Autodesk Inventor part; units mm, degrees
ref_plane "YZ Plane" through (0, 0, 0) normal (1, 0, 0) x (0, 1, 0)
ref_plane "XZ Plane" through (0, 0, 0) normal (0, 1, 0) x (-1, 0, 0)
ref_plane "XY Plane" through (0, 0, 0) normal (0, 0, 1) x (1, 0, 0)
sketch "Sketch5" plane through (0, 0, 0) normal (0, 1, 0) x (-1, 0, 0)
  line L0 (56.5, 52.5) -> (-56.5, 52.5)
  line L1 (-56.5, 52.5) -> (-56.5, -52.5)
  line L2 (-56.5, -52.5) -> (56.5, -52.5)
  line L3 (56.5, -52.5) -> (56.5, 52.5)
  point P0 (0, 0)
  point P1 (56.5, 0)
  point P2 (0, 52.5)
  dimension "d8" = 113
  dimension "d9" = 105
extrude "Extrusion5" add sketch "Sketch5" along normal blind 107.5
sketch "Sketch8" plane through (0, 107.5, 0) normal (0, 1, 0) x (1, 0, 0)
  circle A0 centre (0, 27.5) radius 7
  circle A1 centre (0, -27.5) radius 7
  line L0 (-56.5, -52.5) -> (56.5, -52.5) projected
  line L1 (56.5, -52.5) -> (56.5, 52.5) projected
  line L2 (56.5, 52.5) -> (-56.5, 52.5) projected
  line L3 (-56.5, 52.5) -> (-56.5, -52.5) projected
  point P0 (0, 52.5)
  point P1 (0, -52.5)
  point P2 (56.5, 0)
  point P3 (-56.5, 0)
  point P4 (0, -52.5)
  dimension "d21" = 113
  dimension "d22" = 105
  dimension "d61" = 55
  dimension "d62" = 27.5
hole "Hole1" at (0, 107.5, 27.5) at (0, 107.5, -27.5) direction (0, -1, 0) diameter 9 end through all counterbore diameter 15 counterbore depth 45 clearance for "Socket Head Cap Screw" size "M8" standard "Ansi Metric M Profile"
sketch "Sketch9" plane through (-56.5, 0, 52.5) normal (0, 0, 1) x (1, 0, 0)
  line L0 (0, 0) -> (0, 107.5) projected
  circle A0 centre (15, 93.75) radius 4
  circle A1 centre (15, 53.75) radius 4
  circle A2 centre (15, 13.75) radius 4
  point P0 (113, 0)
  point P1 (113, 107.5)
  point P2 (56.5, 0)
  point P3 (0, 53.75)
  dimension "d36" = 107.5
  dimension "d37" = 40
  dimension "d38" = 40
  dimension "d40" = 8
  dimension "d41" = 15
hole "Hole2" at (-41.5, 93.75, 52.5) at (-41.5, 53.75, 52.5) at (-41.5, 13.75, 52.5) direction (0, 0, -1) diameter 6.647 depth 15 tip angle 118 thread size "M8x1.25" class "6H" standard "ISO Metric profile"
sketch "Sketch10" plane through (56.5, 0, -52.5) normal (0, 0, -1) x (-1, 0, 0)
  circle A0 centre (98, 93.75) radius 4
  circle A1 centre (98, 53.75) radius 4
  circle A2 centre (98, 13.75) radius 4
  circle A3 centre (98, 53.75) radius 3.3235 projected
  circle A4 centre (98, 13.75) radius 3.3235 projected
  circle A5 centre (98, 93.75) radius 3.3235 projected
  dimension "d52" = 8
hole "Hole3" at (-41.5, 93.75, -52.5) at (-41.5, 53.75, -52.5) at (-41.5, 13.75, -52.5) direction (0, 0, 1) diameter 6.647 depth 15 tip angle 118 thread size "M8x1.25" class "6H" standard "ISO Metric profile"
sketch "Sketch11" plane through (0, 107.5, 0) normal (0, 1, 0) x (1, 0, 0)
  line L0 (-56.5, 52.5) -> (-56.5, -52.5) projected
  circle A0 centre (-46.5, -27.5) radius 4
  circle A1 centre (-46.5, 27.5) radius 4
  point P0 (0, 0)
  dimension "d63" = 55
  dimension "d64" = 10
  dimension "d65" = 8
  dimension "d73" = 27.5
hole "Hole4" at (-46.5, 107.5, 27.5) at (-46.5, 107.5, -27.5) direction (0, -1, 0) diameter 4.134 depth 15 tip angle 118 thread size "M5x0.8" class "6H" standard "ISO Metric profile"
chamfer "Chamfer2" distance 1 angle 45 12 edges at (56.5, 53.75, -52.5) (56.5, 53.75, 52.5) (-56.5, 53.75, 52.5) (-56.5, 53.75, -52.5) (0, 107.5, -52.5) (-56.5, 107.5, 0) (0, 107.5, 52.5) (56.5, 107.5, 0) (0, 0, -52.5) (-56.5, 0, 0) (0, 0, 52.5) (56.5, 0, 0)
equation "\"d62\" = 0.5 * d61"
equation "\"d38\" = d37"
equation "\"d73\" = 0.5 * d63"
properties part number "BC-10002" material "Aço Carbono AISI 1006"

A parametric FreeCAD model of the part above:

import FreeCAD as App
import Part
import Sketcher
from FreeCAD import Vector


def edges_at(feature, points):
    """Names of the edges that pass closest to the given points."""
    edges = feature.Shape.Edges
    near = lambda p: min(range(len(edges)), key=lambda i: edges[i].distToShape(Part.Vertex(*p))[0])
    return sorted({f"Edge{near(p) + 1}" for p in points})

doc = App.newDocument("Part")
body = doc.addObject("PartDesign::Body", "Body")

sketch1 = body.newObject("Sketcher::SketchObject", "Sketch")
sketch1.AttachmentSupport = (doc.getObject("XZ_Plane"), [""])
sketch1.MapMode = "FlatFace"
sketch1.addGeometry([
    Part.LineSegment(Vector(-56, -52, 0), Vector(-56, 52, 0)),
    Part.LineSegment(Vector(-56, 52, 0), Vector(56, 52, 0)),
    Part.LineSegment(Vector(56, 52, 0), Vector(56, -52, 0)),
    Part.LineSegment(Vector(56, -52, 0), Vector(-56, -52, 0)),
], False)
sketch1.addConstraint([
    Sketcher.Constraint("Coincident", 0, 2, 1, 1),
    Sketcher.Constraint("Coincident", 1, 2, 2, 1),
    Sketcher.Constraint("Coincident", 2, 2, 3, 1),
    Sketcher.Constraint("Coincident", 3, 2, 0, 1),
    Sketcher.Constraint("Vertical", 0),
    Sketcher.Constraint("Horizontal", 1),
    Sketcher.Constraint("Vertical", 2),
    Sketcher.Constraint("Horizontal", 3),
    Sketcher.Constraint("Symmetric", 0, 2, 2, 2, -1, 1),
    Sketcher.Constraint("DistanceX", 1, 1, 1, 2, 113.0),
    Sketcher.Constraint("DistanceY", 0, 1, 0, 2, 105.0),
])
pad1 = body.newObject("PartDesign::Pad", "Pad")
pad1.Profile = sketch1
pad1.Length = 107.5
pad1.Reversed = True

sketch2 = body.newObject("Sketcher::SketchObject", "Sketch001")
sketch2.AttachmentSupport = (doc.getObject("XZ_Plane"), [""])
sketch2.MapMode = "FlatFace"
sketch2.AttachmentOffset = App.Placement(Vector(0, 0, -107.5), App.Rotation())
sketch2.addGeometry([
    Part.Circle(Vector(0, 27.5, 0), Vector(0, 0, 1), 4.5),
    Part.Circle(Vector(0, -27.5, 0), Vector(0, 0, 1), 4.5),
], False)
sketch2.addConstraint([
    Sketcher.Constraint("Equal", 0, 1),
    Sketcher.Constraint("Symmetric", 0, 3, 1, 3, -1, 1),
    Sketcher.Constraint("PointOnObject", 0, 3, -2),
    Sketcher.Constraint("Diameter", 0, 9.0),
    Sketcher.Constraint("DistanceY", 1, 3, 0, 3, 55.0),
])
doc.recompute()
hole = body.newObject("PartDesign::Hole", "Hole")
hole.Profile = sketch2
hole.ThreadType = "None"
hole.Diameter = 9
hole.DepthType = "ThroughAll"
hole.HoleCutType = "Counterbore"
hole.HoleCutDiameter = 15
hole.HoleCutDepth = 45
hole.Reversed = True

sketch3 = body.newObject("Sketcher::SketchObject", "Sketch002")
sketch3.AttachmentSupport = (doc.getObject("XY_Plane"), [""])
sketch3.MapMode = "FlatFace"
sketch3.AttachmentOffset = App.Placement(Vector(0, 0, 52.5), App.Rotation())
sketch3.addGeometry([
    Part.Circle(Vector(-41.5, 93.8, 0), Vector(0, 0, 1), 3.3),
    Part.Circle(Vector(-41.5, 53.8, 0), Vector(0, 0, 1), 3.3),
    Part.Circle(Vector(-41.5, 13.8, 0), Vector(0, 0, 1), 3.3),
], False)
sketch3.addConstraint([
    Sketcher.Constraint("Equal", 0, 1),
    Sketcher.Constraint("Equal", 1, 2),
    Sketcher.Constraint("Vertical", 0, 3, 1, 3),
    Sketcher.Constraint("Vertical", 1, 3, 2, 3),
    Sketcher.Constraint("Diameter", 0, 6.647),
    Sketcher.Constraint("DistanceY", 1, 3, 0, 3, 40.0),
    Sketcher.Constraint("DistanceY", 2, 3, 1, 3, 40.0),
    Sketcher.Constraint("DistanceX", 0, 3, -1, 1, 41.5),
    Sketcher.Constraint("DistanceY", -1, 1, 0, 3, 93.75),
])
doc.recompute()
hole2 = body.newObject("PartDesign::Hole", "Hole001")
hole2.Profile = sketch3
hole2.ThreadType = "None"
hole2.Diameter = 6.647
hole2.DepthType = "Dimension"
hole2.Depth = 15
hole2.DrillPoint = "Angled"
hole2.DrillPointAngle = 118

sketch4 = body.newObject("Sketcher::SketchObject", "Sketch003")
sketch4.AttachmentSupport = (doc.getObject("XY_Plane"), [""])
sketch4.MapMode = "FlatFace"
sketch4.AttachmentOffset = App.Placement(Vector(0, 0, -52.5), App.Rotation())
sketch4.addGeometry([
    Part.Circle(Vector(-41.5, 93.8, 0), Vector(0, 0, 1), 3.3),
    Part.Circle(Vector(-41.5, 53.8, 0), Vector(0, 0, 1), 3.3),
    Part.Circle(Vector(-41.5, 13.8, 0), Vector(0, 0, 1), 3.3),
], False)
sketch4.addConstraint([
    Sketcher.Constraint("Equal", 0, 1),
    Sketcher.Constraint("Equal", 1, 2),
    Sketcher.Constraint("Vertical", 0, 3, 1, 3),
    Sketcher.Constraint("Vertical", 1, 3, 2, 3),
    Sketcher.Constraint("Diameter", 0, 6.647),
    Sketcher.Constraint("DistanceY", 1, 3, 0, 3, 40.0),
    Sketcher.Constraint("DistanceY", 2, 3, 1, 3, 40.0),
    Sketcher.Constraint("DistanceX", 0, 3, -1, 1, 41.5),
    Sketcher.Constraint("DistanceY", -1, 1, 0, 3, 93.75),
])
doc.recompute()
hole3 = body.newObject("PartDesign::Hole", "Hole002")
hole3.Profile = sketch4
hole3.ThreadType = "None"
hole3.Diameter = 6.647
hole3.DepthType = "Dimension"
hole3.Depth = 15
hole3.DrillPoint = "Angled"
hole3.DrillPointAngle = 118
hole3.Reversed = True

sketch5 = body.newObject("Sketcher::SketchObject", "Sketch004")
sketch5.AttachmentSupport = (doc.getObject("XZ_Plane"), [""])
sketch5.MapMode = "FlatFace"
sketch5.AttachmentOffset = App.Placement(Vector(0, 0, -107.5), App.Rotation())
sketch5.addGeometry([
    Part.Circle(Vector(-46.5, 27.5, 0), Vector(0, 0, 1), 2.1),
    Part.Circle(Vector(-46.5, -27.5, 0), Vector(0, 0, 1), 2.1),
], False)
sketch5.addConstraint([
    Sketcher.Constraint("Equal", 0, 1),
    Sketcher.Constraint("Symmetric", 0, 3, 1, 3, -1),
    Sketcher.Constraint("Diameter", 0, 4.134),
    Sketcher.Constraint("DistanceY", 1, 3, 0, 3, 55.0),
    Sketcher.Constraint("DistanceX", 0, 3, -1, 1, 46.5),
])
doc.recompute()
hole4 = body.newObject("PartDesign::Hole", "Hole003")
hole4.Profile = sketch5
hole4.ThreadType = "None"
hole4.Diameter = 4.134
hole4.DepthType = "Dimension"
hole4.Depth = 15
hole4.DrillPoint = "Angled"
hole4.DrillPointAngle = 118
hole4.Reversed = True
doc.recompute()

chamfer = body.newObject("PartDesign::Chamfer", "Chamfer")
chamfer.Base = (hole4, edges_at(hole4, [
    (56.5, 53.75, -52.5),
    (56.5, 53.75, 52.5),
    (-56.5, 53.75, 52.5),
    (-56.5, 53.75, -52.5),
    (0, 107.5, -52.5),
    (-56.5, 107.5, 0),
    (0, 107.5, 52.5),
    (56.5, 107.5, 0),
    (0, 0, -52.5),
    (-56.5, 0, 0),
    (0, 0, 52.5),
    (56.5, 0, 0),
]))
chamfer.Size = 1

doc.recompute()
